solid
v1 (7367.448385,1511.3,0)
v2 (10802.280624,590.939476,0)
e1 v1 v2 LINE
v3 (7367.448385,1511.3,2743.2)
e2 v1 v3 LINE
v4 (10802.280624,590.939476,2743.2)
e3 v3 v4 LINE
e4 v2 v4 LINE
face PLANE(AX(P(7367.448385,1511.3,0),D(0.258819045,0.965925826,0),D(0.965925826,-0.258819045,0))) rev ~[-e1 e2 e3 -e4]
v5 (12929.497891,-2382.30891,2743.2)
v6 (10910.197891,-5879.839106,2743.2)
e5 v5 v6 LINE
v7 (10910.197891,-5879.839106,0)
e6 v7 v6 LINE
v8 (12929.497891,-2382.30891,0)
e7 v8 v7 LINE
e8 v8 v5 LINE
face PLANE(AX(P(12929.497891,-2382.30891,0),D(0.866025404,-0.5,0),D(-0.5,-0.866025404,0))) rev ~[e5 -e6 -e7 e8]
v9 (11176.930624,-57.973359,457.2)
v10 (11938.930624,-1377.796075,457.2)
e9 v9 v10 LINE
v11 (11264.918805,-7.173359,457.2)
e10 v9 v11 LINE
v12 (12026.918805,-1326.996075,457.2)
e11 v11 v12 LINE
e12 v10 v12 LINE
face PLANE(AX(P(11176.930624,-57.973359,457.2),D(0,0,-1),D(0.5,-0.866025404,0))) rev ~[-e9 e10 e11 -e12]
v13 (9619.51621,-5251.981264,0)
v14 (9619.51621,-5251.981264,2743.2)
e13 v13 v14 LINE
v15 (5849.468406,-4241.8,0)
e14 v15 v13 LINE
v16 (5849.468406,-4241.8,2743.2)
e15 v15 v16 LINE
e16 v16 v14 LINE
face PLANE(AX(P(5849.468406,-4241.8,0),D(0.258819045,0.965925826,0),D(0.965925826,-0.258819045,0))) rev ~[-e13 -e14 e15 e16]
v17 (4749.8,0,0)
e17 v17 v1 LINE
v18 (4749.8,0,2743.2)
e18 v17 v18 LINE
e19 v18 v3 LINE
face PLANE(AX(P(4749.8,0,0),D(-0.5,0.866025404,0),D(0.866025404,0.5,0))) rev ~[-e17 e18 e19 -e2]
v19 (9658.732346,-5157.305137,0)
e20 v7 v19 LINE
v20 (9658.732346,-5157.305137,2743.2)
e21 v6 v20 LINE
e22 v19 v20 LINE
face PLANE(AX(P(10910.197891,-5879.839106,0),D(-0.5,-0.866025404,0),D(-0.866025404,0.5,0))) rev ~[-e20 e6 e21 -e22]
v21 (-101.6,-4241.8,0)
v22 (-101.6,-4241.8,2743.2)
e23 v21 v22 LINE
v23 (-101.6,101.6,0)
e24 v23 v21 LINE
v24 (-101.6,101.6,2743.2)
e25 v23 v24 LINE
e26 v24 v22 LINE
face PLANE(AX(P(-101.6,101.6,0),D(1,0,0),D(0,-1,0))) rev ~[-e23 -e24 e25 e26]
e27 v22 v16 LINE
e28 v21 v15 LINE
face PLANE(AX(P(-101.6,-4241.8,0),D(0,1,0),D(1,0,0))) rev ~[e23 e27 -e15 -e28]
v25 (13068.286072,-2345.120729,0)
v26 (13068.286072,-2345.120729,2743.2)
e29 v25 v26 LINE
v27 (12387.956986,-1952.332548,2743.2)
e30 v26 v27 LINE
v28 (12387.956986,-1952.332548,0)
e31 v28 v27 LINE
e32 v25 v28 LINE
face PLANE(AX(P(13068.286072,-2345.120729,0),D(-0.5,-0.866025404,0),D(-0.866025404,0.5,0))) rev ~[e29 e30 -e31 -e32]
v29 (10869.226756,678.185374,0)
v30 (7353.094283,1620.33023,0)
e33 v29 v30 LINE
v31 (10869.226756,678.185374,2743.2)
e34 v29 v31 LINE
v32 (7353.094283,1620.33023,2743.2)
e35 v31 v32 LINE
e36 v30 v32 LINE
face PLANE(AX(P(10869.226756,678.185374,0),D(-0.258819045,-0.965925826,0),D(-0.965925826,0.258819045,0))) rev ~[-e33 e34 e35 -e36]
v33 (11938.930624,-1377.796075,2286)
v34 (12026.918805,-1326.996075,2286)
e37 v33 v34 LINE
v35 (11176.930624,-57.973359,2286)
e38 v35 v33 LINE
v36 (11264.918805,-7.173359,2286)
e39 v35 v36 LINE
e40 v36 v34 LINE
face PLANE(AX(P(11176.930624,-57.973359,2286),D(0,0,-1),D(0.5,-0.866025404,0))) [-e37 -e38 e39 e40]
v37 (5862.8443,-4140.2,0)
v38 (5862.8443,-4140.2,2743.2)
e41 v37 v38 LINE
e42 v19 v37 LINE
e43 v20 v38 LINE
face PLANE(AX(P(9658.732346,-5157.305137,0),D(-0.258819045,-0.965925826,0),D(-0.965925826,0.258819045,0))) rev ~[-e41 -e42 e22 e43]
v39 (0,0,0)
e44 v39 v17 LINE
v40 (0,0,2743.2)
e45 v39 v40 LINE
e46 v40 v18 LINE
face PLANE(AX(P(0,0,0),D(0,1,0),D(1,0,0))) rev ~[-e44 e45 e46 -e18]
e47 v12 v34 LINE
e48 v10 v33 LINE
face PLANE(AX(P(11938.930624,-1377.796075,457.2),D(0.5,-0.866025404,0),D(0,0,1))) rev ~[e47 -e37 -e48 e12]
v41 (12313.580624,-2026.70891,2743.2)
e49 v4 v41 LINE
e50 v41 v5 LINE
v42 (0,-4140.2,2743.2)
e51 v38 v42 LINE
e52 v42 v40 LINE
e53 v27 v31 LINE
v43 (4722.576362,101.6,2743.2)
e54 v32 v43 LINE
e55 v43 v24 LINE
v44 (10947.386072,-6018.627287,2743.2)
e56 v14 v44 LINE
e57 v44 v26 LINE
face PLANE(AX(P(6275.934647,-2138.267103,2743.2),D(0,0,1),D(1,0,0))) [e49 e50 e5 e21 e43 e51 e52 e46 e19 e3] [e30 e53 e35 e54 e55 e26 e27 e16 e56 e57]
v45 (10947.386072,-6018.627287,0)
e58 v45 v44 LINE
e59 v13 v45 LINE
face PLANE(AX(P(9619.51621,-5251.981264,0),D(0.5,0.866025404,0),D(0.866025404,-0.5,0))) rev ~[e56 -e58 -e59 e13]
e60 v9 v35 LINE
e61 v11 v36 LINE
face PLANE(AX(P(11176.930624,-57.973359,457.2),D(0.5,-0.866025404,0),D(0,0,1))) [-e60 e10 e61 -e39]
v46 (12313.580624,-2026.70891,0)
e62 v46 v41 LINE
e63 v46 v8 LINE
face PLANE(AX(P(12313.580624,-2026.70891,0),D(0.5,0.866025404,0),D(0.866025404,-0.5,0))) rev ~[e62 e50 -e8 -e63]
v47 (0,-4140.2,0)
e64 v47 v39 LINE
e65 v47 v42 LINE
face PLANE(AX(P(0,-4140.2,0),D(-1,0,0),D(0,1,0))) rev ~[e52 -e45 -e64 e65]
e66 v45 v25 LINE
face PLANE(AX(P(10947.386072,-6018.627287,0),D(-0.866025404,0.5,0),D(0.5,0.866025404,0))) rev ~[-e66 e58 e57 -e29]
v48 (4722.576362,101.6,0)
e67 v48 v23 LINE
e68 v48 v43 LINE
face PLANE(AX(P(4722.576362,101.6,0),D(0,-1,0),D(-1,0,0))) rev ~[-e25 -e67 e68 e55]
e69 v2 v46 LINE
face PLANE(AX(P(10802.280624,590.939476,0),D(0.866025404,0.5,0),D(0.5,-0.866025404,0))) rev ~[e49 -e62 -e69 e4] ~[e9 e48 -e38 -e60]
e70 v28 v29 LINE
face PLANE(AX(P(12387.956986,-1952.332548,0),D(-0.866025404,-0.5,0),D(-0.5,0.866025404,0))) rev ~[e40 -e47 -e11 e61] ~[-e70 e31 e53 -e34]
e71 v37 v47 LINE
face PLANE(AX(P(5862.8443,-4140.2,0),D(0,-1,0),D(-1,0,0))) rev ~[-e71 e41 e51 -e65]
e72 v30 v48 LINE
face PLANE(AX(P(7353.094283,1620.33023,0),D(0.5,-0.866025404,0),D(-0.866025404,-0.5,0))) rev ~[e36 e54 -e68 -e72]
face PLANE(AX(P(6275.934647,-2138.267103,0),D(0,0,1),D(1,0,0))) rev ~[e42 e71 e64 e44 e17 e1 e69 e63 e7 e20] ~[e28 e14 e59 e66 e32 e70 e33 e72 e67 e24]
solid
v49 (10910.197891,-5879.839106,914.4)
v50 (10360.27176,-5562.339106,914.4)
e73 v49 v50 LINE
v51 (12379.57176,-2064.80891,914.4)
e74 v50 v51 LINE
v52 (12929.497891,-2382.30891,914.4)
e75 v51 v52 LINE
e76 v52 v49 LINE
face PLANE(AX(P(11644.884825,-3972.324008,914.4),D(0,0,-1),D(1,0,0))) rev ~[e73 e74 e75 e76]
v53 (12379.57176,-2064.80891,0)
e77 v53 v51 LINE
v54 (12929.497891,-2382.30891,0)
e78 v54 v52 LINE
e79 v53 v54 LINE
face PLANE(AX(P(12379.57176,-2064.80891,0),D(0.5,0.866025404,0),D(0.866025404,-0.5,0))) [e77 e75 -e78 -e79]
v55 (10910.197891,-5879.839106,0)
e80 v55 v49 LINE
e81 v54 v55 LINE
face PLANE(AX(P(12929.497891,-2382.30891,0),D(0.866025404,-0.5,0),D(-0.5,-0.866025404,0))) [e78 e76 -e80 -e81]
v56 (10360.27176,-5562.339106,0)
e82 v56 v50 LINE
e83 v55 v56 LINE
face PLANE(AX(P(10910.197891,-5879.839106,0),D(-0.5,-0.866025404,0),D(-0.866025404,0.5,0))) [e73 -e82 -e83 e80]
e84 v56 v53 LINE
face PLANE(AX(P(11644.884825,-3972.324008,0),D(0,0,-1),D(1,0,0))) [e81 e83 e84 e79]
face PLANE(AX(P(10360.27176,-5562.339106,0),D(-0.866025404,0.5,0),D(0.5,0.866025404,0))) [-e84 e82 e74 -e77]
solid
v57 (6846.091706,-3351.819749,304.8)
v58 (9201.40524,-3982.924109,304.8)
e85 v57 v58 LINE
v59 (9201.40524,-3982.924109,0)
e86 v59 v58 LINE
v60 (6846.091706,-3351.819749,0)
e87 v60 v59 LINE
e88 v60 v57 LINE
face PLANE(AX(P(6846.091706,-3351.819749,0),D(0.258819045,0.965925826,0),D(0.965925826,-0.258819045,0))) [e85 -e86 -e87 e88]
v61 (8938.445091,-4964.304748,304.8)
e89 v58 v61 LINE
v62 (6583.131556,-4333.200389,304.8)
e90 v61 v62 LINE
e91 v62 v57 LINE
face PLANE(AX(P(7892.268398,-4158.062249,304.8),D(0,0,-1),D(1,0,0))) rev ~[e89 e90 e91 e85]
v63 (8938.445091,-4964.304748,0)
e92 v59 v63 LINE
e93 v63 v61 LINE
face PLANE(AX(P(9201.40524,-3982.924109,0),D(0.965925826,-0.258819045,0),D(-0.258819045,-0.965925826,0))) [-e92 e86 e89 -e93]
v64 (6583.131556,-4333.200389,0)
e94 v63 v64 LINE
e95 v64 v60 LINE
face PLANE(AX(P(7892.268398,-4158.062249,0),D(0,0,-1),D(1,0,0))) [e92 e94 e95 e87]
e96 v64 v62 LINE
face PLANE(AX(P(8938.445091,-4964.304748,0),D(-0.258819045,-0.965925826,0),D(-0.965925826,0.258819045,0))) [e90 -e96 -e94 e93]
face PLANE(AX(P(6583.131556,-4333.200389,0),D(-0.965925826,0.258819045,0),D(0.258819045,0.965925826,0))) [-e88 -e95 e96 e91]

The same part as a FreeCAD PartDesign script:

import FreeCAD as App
import Part
import Sketcher

V = App.Vector
Q = App.Units.Quantity

doc = App.newDocument("Part")
body = doc.addObject("PartDesign::Body", "Body")

sketch1 = body.newObject("Sketcher::SketchObject", "Sketch")
sketch1.AttachmentSupport = (doc.getObject("XY_Plane"), [""])
sketch1.MapMode = "FlatFace"
sketch1.addGeometry(Part.LineSegment(V(13068, -2345, 0), V(12388, -1952, 0)), False)
sketch1.addGeometry(Part.LineSegment(V(12388, -1952, 0), V(10869, 678, 0)), False)
sketch1.addGeometry(Part.LineSegment(V(10869, 678, 0), V(7353, 1620, 0)), False)
sketch1.addGeometry(Part.LineSegment(V(7353, 1620, 0), V(4723, 102, 0)), False)
sketch1.addGeometry(Part.LineSegment(V(4723, 102, 0), V(-102, 102, 0)), False)
sketch1.addGeometry(Part.LineSegment(V(-102, 102, 0), V(-102, -4242, 0)), False)
sketch1.addGeometry(Part.LineSegment(V(-102, -4242, 0), V(5849, -4242, 0)), False)
sketch1.addGeometry(Part.LineSegment(V(5849, -4242, 0), V(9620, -5252, 0)), False)
sketch1.addGeometry(Part.LineSegment(V(9620, -5252, 0), V(10947, -6019, 0)), False)
sketch1.addGeometry(Part.LineSegment(V(10947, -6019, 0), V(13068, -2345, 0)), False)
sketch1.addGeometry(Part.LineSegment(V(5863, -4140, 0), V(0, -4140, 0)), False)
sketch1.addGeometry(Part.LineSegment(V(0, -4140, 0), V(0, 0, 0)), False)
sketch1.addGeometry(Part.LineSegment(V(0, 0, 0), V(4750, 0, 0)), False)
sketch1.addGeometry(Part.LineSegment(V(4750, 0, 0), V(7367, 1511, 0)), False)
sketch1.addGeometry(Part.LineSegment(V(7367, 1511, 0), V(10802, 591, 0)), False)
sketch1.addGeometry(Part.LineSegment(V(10802, 591, 0), V(12314, -2027, 0)), False)
sketch1.addGeometry(Part.LineSegment(V(12314, -2027, 0), V(12929, -2382, 0)), False)
sketch1.addGeometry(Part.LineSegment(V(12929, -2382, 0), V(10910, -5880, 0)), False)
sketch1.addGeometry(Part.LineSegment(V(10910, -5880, 0), V(9659, -5157, 0)), False)
sketch1.addGeometry(Part.LineSegment(V(9659, -5157, 0), V(5863, -4140, 0)), False)
sketch1.addConstraint(Sketcher.Constraint("Coincident", 0, 2, 1, 1))
sketch1.addConstraint(Sketcher.Constraint("Coincident", 1, 2, 2, 1))
sketch1.addConstraint(Sketcher.Constraint("Coincident", 2, 2, 3, 1))
sketch1.addConstraint(Sketcher.Constraint("Coincident", 3, 2, 4, 1))
sketch1.addConstraint(Sketcher.Constraint("Coincident", 4, 2, 5, 1))
sketch1.addConstraint(Sketcher.Constraint("Coincident", 5, 2, 6, 1))
sketch1.addConstraint(Sketcher.Constraint("Coincident", 6, 2, 7, 1))
sketch1.addConstraint(Sketcher.Constraint("Coincident", 7, 2, 8, 1))
sketch1.addConstraint(Sketcher.Constraint("Coincident", 8, 2, 9, 1))
sketch1.addConstraint(Sketcher.Constraint("Coincident", 9, 2, 0, 1))
sketch1.addConstraint(Sketcher.Constraint("Coincident", 10, 2, 11, 1))
sketch1.addConstraint(Sketcher.Constraint("Coincident", 11, 2, 12, 1))
sketch1.addConstraint(Sketcher.Constraint("Coincident", 12, 2, 13, 1))
sketch1.addConstraint(Sketcher.Constraint("Coincident", 13, 2, 14, 1))
sketch1.addConstraint(Sketcher.Constraint("Coincident", 14, 2, 15, 1))
sketch1.addConstraint(Sketcher.Constraint("Coincident", 15, 2, 16, 1))
sketch1.addConstraint(Sketcher.Constraint("Coincident", 16, 2, 17, 1))
sketch1.addConstraint(Sketcher.Constraint("Coincident", 17, 2, 18, 1))
sketch1.addConstraint(Sketcher.Constraint("Coincident", 18, 2, 19, 1))
sketch1.addConstraint(Sketcher.Constraint("Coincident", 19, 2, 10, 1))
sketch1.addConstraint(Sketcher.Constraint("Horizontal", 4))
sketch1.addConstraint(Sketcher.Constraint("Vertical", 5))
sketch1.addConstraint(Sketcher.Constraint("Horizontal", 6))
sketch1.addConstraint(Sketcher.Constraint("Horizontal", 10))
sketch1.addConstraint(Sketcher.Constraint("Vertical", 11))
sketch1.addConstraint(Sketcher.Constraint("Horizontal", 12))
sketch1.addConstraint(Sketcher.Constraint("Coincident", 11, 2, -1, 1))
sketch1.addConstraint(Sketcher.Constraint("Perpendicular", 1, 3))
sketch1.addConstraint(Sketcher.Constraint("Parallel", 2, 7))
sketch1.addConstraint(Sketcher.Constraint("Parallel", 0, 8))
sketch1.addConstraint(Sketcher.Constraint("Perpendicular", 8, 9))
sketch1.addConstraint(Sketcher.Constraint("Parallel", 3, 13))
sketch1.addConstraint(Sketcher.Constraint("Parallel", 7, 14))
sketch1.addConstraint(Sketcher.Constraint("Perpendicular", 13, 15))
sketch1.addConstraint(Sketcher.Constraint("Perpendicular", 9, 16))
sketch1.addConstraint(Sketcher.Constraint("Perpendicular", 16, 17))
sketch1.addConstraint(Sketcher.Constraint("Perpendicular", 17, 18))
sketch1.addConstraint(Sketcher.Constraint("Parallel", 14, 19))
sketch1.addConstraint(Sketcher.Constraint("Equal", 1, 3))
sketch1.addConstraint(Sketcher.Constraint("Equal", 13, 15))
sketch1.addConstraint(Sketcher.Constraint("DistanceX", 12, 1, 12, 2, Q("187 in")))
sketch1.addConstraint(Sketcher.Constraint("DistanceY", 5, 2, 5, 1, Q("171 in")))
sketch1.addConstraint(Sketcher.Constraint("DistanceY", 11, 1, 11, 2, Q("163 in")))
sketch1.addConstraint(Sketcher.Constraint("Distance", 9, Q("167 in")))
sketch1.addConstraint(Sketcher.Constraint("Distance", 13, Q("119 in")))
sketch1.addConstraint(Sketcher.Constraint("Distance", 14, Q("140 in")))
sketch1.addConstraint(Sketcher.Constraint("Distance", 16, Q("28 in")))
sketch1.addConstraint(Sketcher.Constraint("Distance", 17, Q("159 in")))
sketch1.addConstraint(Sketcher.Constraint("DistanceY", -1, 1, 3, 2, Q("4 in")))
sketch1.addConstraint(Sketcher.Constraint("DistanceX", 4, 2, -1, 1, Q("4 in")))
sketch1.addConstraint(Sketcher.Constraint("Angle", 0, Q("150 deg")))
sketch1.addConstraint(Sketcher.Constraint("Angle", 1, Q("120 deg")))
sketch1.addConstraint(Sketcher.Constraint("Angle", 2, Q("165 deg")))
sketch1.addConstraint(Sketcher.Constraint("DistanceX", 10, 2, 10, 1, 5862.8443))
sketch1.addConstraint(Sketcher.Constraint("Distance", 1, 3037.46046))
sketch1.addConstraint(Sketcher.Constraint("Distance", 7, 3903.04069))
sketch1.addConstraint(Sketcher.Constraint("DistanceX", 4, 2, 4, 1, 4824.176362))
sketch1.addConstraint(Sketcher.Constraint("DistanceX", 6, 1, 6, 2, 5951.068406))
sketch1.addConstraint(Sketcher.Constraint("DistanceX", -1, 1, 8, 2, 10947.386072))
pad1 = body.newObject("PartDesign::Pad", "Pad")
pad1.Profile = sketch1
pad1.Length = Q("108 in")

sketch2 = body.newObject("Sketcher::SketchObject", "Sketch001")
sketch2.Placement = App.Placement(V(8357.594767, 4825.259588, 0), App.Rotation(V(0.5, -0.866025404, 0), V(0, 0, 1), V(-0.866025404, -0.5, 0), "ZXY"))
sketch2.addGeometry(Part.LineSegment(V(5639, 2286, 0), V(5639, 457, 0)), False)
sketch2.addGeometry(Part.LineSegment(V(5639, 457, 0), V(7163, 457, 0)), False)
sketch2.addGeometry(Part.LineSegment(V(7163, 457, 0), V(7163, 2286, 0)), False)
sketch2.addGeometry(Part.LineSegment(V(7163, 2286, 0), V(5639, 2286, 0)), False)
sketch2.addConstraint(Sketcher.Constraint("Coincident", 0, 2, 1, 1))
sketch2.addConstraint(Sketcher.Constraint("Coincident", 1, 2, 2, 1))
sketch2.addConstraint(Sketcher.Constraint("Coincident", 2, 2, 3, 1))
sketch2.addConstraint(Sketcher.Constraint("Coincident", 3, 2, 0, 1))
sketch2.addConstraint(Sketcher.Constraint("Vertical", 0))
sketch2.addConstraint(Sketcher.Constraint("Horizontal", 1))
sketch2.addConstraint(Sketcher.Constraint("Vertical", 2))
sketch2.addConstraint(Sketcher.Constraint("Horizontal", 3))
sketch2.addConstraint(Sketcher.Constraint("DistanceX", 1, 1, 1, 2, Q("60 in")))
sketch2.addConstraint(Sketcher.Constraint("DistanceY", 0, 2, 0, 1, Q("72.0000001 in")))
sketch2.addConstraint(Sketcher.Constraint("DistanceY", -1, 1, 0, 2, Q("18 in")))
sketch2.addConstraint(Sketcher.Constraint("DistanceX", -1, 1, 0, 2, 5638.671716))
pocket1 = body.newObject("PartDesign::Pocket", "Pocket")
pocket1.Profile = sketch2
pocket1.Type = "ThroughAll"
body2 = doc.addObject("PartDesign::Body", "Body001")

sketch3 = body2.newObject("Sketcher::SketchObject", "Sketch002")
sketch3.AttachmentSupport = (doc.getObject("XY_Plane001"), [""])
sketch3.MapMode = "FlatFace"
sketch3.addGeometry(Part.LineSegment(V(12380, -2065, 0), V(12929, -2382, 0)), False)
sketch3.addGeometry(Part.LineSegment(V(12929, -2382, 0), V(10910, -5880, 0)), False)
sketch3.addGeometry(Part.LineSegment(V(10910, -5880, 0), V(10360, -5562, 0)), False)
sketch3.addGeometry(Part.LineSegment(V(10360, -5562, 0), V(12380, -2065, 0)), False)
sketch3.addConstraint(Sketcher.Constraint("Coincident", 0, 2, 1, 1))
sketch3.addConstraint(Sketcher.Constraint("Coincident", 1, 2, 2, 1))
sketch3.addConstraint(Sketcher.Constraint("Coincident", 2, 2, 3, 1))
sketch3.addConstraint(Sketcher.Constraint("Coincident", 3, 2, 0, 1))
sketch3.addConstraint(Sketcher.Constraint("Perpendicular", 0, 1))
sketch3.addConstraint(Sketcher.Constraint("Perpendicular", 1, 2))
sketch3.addConstraint(Sketcher.Constraint("Perpendicular", 2, 3))
sketch3.addConstraint(Sketcher.Constraint("Distance", 0, Q("25 in")))
sketch3.addConstraint(Sketcher.Constraint("Distance", 1, Q("159 in")))
sketch3.addConstraint(Sketcher.Constraint("Angle", 0, Q("-30 deg")))
sketch3.addConstraint(Sketcher.Constraint("DistanceX", -1, 1, 0, 2, 12929.497891))
sketch3.addConstraint(Sketcher.Constraint("DistanceY", 0, 2, -1, 1, 2382.30891))
pad2 = body2.newObject("PartDesign::Pad", "Pad001")
pad2.Profile = sketch3
pad2.Length = Q("36 in")
body3 = doc.addObject("PartDesign::Body", "Body002")

sketch4 = body3.newObject("Sketcher::SketchObject", "Sketch003")
sketch4.AttachmentSupport = (doc.getObject("XY_Plane002"), [""])
sketch4.MapMode = "FlatFace"
sketch4.addGeometry(Part.LineSegment(V(6583, -4333, 0), V(6846, -3352, 0)), False)
sketch4.addGeometry(Part.LineSegment(V(6846, -3352, 0), V(9201, -3983, 0)), False)
sketch4.addGeometry(Part.LineSegment(V(9201, -3983, 0), V(8938, -4964, 0)), False)
sketch4.addGeometry(Part.LineSegment(V(8938, -4964, 0), V(6583, -4333, 0)), False)
sketch4.addConstraint(Sketcher.Constraint("Coincident", 0, 2, 1, 1))
sketch4.addConstraint(Sketcher.Constraint("Coincident", 1, 2, 2, 1))
sketch4.addConstraint(Sketcher.Constraint("Coincident", 2, 2, 3, 1))
sketch4.addConstraint(Sketcher.Constraint("Coincident", 3, 2, 0, 1))
sketch4.addConstraint(Sketcher.Constraint("Perpendicular", 0, 1))
sketch4.addConstraint(Sketcher.Constraint("Perpendicular", 1, 2))
sketch4.addConstraint(Sketcher.Constraint("Perpendicular", 2, 3))
sketch4.addConstraint(Sketcher.Constraint("Distance", 0, Q("40 in")))
sketch4.addConstraint(Sketcher.Constraint("Distance", 1, Q("96 in")))
sketch4.addConstraint(Sketcher.Constraint("Angle", 0, Q("75 deg")))
sketch4.addConstraint(Sketcher.Constraint("DistanceY", 0, 2, -1, 1, 3351.819749))
sketch4.addConstraint(Sketcher.Constraint("DistanceX", -1, 1, 1, 2, 9201.40524))
pad3 = body3.newObject("PartDesign::Pad", "Pad002")
pad3.Profile = sketch4
pad3.Length = Q("12 in")

doc.recompute()
